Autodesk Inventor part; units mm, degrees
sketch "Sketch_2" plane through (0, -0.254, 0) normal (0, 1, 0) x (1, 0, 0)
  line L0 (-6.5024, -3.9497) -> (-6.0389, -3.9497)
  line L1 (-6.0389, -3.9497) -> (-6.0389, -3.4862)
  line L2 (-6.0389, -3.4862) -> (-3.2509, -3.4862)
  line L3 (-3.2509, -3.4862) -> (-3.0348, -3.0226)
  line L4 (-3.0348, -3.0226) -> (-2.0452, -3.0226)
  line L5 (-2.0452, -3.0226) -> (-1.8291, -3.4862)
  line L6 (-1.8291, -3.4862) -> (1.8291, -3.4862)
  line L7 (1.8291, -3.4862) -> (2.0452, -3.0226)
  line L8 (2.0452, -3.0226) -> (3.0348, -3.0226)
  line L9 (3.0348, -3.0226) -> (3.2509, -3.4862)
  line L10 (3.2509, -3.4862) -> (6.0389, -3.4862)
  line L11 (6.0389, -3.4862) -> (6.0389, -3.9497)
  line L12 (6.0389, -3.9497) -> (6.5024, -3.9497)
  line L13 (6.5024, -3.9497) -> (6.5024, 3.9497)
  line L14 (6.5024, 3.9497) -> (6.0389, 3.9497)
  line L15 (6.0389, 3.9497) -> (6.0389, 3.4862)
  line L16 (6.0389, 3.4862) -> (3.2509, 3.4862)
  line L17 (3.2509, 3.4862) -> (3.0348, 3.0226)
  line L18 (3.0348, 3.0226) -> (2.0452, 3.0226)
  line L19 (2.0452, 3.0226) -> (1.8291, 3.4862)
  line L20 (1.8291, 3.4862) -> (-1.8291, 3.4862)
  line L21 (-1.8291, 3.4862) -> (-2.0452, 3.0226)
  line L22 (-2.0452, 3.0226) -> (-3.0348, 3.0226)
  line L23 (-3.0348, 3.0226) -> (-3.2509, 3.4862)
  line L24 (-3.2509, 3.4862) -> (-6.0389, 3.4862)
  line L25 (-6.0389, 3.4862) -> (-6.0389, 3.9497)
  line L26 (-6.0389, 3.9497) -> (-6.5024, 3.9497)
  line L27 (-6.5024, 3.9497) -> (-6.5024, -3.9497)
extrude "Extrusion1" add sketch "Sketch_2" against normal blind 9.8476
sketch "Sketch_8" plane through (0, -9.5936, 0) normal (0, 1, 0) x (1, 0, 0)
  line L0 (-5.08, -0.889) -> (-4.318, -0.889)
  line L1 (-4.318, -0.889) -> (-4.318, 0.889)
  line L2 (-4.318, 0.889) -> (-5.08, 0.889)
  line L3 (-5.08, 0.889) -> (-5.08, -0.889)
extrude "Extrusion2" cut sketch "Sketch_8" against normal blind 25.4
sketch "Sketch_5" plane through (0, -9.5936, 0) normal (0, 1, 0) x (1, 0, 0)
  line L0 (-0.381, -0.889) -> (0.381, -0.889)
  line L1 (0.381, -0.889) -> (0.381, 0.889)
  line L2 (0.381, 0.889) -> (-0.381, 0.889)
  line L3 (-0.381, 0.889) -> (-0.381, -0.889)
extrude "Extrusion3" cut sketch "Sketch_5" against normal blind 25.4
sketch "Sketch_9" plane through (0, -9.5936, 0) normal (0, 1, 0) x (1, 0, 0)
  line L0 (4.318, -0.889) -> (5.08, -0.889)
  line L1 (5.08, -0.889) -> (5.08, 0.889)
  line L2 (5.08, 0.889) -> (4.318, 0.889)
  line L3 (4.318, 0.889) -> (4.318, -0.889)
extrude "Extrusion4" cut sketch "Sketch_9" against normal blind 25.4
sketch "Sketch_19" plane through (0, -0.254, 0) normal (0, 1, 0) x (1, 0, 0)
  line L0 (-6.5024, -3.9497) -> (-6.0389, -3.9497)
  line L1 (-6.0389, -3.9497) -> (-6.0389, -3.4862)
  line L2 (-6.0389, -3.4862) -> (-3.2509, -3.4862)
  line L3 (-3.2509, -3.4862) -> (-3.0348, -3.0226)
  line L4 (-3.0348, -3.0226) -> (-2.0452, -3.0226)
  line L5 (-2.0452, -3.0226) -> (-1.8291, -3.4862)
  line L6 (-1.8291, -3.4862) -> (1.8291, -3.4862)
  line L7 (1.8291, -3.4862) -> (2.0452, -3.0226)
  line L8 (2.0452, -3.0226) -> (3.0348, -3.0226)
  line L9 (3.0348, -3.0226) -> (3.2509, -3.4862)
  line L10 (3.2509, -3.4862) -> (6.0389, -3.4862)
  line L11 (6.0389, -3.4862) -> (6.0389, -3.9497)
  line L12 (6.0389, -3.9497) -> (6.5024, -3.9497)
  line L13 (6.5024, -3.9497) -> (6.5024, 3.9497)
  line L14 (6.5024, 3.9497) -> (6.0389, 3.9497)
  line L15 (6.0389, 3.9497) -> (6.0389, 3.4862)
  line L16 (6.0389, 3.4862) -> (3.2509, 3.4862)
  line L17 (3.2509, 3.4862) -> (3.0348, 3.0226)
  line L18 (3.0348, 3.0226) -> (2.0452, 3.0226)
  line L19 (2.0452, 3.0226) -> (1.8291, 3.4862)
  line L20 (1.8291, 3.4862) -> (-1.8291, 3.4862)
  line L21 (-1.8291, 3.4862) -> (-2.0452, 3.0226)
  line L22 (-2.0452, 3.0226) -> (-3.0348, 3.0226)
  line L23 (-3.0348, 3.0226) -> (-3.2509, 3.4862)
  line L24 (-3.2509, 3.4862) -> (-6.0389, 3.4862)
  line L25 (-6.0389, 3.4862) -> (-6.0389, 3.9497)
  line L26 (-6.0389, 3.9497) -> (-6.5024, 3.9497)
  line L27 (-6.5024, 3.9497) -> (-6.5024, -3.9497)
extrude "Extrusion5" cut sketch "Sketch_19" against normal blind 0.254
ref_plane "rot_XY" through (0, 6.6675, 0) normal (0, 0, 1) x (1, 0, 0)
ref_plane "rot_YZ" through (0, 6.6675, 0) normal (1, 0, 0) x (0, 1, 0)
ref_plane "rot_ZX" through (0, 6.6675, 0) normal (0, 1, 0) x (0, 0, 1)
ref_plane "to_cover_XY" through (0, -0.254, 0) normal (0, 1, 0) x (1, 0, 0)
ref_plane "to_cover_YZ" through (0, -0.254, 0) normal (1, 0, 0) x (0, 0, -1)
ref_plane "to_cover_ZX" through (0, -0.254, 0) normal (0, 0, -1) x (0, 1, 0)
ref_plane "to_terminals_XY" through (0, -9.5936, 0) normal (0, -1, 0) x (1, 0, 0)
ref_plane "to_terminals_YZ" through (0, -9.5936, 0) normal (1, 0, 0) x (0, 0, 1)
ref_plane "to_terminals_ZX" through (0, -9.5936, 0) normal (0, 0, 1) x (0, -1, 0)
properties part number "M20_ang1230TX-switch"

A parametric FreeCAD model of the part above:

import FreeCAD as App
import Part
import Sketcher

V = App.Vector
Q = App.Units.Quantity


def add_polygon(sketch, points):
    """Adds a closed chain of lines whose ends are joined by coincident constraints."""
    first, n = sketch.GeometryCount, len(points)
    for a, b in zip(points, points[1:] + points[:1]):
        sketch.addGeometry(Part.LineSegment(App.Vector(*a, 0), App.Vector(*b, 0)), False)
    for i in range(n):
        sketch.addConstraint(Sketcher.Constraint("Coincident", first + i, 2, first + (i + 1) % n, 1))

doc = App.newDocument("Part")
body = doc.addObject("PartDesign::Body", "Body")

# Sketch on XZ plane
sketch1 = body.newObject("Sketcher::SketchObject", "Sketch")
sketch1.AttachmentSupport = (doc.getObject("XZ_Plane"), [""])
sketch1.MapMode = "FlatFace"
sketch1.AttachmentOffset = App.Placement(V(0, 0, 0.01 * 25.4), App.Rotation())
add_polygon(sketch1, [(-6.5024, -3.9497), (-6.5024, 3.9497), (-6.0389, 3.9497), (-6.0389, 3.4862), (-3.2509, 3.4862), (-3.0348, 3.0226), (-2.0452, 3.0226), (-1.8291, 3.4862), (1.8291, 3.4862), (2.0452, 3.0226), (3.0348, 3.0226), (3.2509, 3.4862), (6.0389, 3.4862), (6.0389, 3.9497), (6.5024, 3.9497), (6.5024, -3.9497), (6.0389, -3.9497), (6.0389, -3.4862), (3.2509, -3.4862), (3.0348, -3.0226), (2.0452, -3.0226), (1.8291, -3.4862), (-1.8291, -3.4862), (-2.0452, -3.0226), (-3.0348, -3.0226), (-3.2509, -3.4862), (-6.0389, -3.4862), (-6.0389, -3.9497)])  # lines 0-27
sketch1.addConstraint([
    Sketcher.Constraint("Vertical", 0),
    Sketcher.Constraint("Horizontal", 1),
    Sketcher.Constraint("Vertical", 2),
    Sketcher.Constraint("Horizontal", 3),
    Sketcher.Constraint("Horizontal", 5),
    Sketcher.Constraint("Horizontal", 7),
    Sketcher.Constraint("Horizontal", 9),
    Sketcher.Constraint("Horizontal", 11),
    Sketcher.Constraint("Vertical", 12),
    Sketcher.Constraint("Horizontal", 13),
    Sketcher.Constraint("Vertical", 14),
    Sketcher.Constraint("Horizontal", 15),
    Sketcher.Constraint("Vertical", 16),
    Sketcher.Constraint("Horizontal", 17),
    Sketcher.Constraint("Horizontal", 19),
    Sketcher.Constraint("Horizontal", 21),
    Sketcher.Constraint("Horizontal", 23),
    Sketcher.Constraint("Horizontal", 25),
    Sketcher.Constraint("Vertical", 26),
    Sketcher.Constraint("Horizontal", 27),
    Sketcher.Constraint("Symmetric", 0, 2, 14, 2, -1, 1),
    Sketcher.Constraint("Symmetric", 2, 2, 16, 2, -1, 1),
    Sketcher.Constraint("Symmetric", 4, 2, 18, 2, -1, 1),
    Sketcher.Constraint("Symmetric", 6, 2, 20, 2, -1, 1),
    Sketcher.Constraint("Symmetric", 8, 2, 22, 2, -1, 1),
    Sketcher.Constraint("Symmetric", 10, 2, 24, 2, -1, 1),
    Sketcher.Constraint("Symmetric", 12, 2, 26, 2, -1, 1),
    Sketcher.Constraint("Symmetric", 5, 2, 8, 2, -2),
    Sketcher.Constraint("Symmetric", 3, 2, 10, 2, -2),
    Sketcher.Constraint("Symmetric", 1, 2, 12, 2, -2),
    Sketcher.Constraint("Parallel", 4, 8),
    Sketcher.Constraint("Parallel", 6, 10),
    Sketcher.Constraint("Parallel", 8, 18),
    Sketcher.Constraint("Parallel", 10, 20),
    Sketcher.Constraint("Parallel", 18, 22),
    Sketcher.Constraint("Parallel", 20, 24),
    Sketcher.Constraint("Horizontal", 3, 2, 6, 2),
    Sketcher.Constraint("Vertical", 9, 2, 18, 2),
    Sketcher.Constraint("Equal", 27, 2),
    Sketcher.Constraint("DistanceX", 3, 2, 7, 2, Q("0.2 in")),
    Sketcher.Constraint("DistanceY", 0, 1, 0, 2, Q("0.311 in")),
    Sketcher.Constraint("DistanceX", 0, 2, -1, 1, Q("0.256 in")),
    Sketcher.Constraint("DistanceX", 3, 2, -1, 1, Q("0.128 in")),
    Sketcher.Constraint("DistanceY", -1, 1, 4, 2, Q("0.119 in")),
    Sketcher.Constraint("DistanceX", 1, 1, 1, 2, Q("0.4635 mm")),
    Sketcher.Constraint("DistanceX", 5, 1, 5, 2, Q("0.9896 mm")),
])
pad1 = body.newObject("PartDesign::Pad", "Pad")
pad1.Profile = sketch1
pad1.Length = Q("0.3877008 in")

# Sketch on XZ plane
sketch2 = body.newObject("Sketcher::SketchObject", "Sketch001")
sketch2.AttachmentSupport = (doc.getObject("XZ_Plane"), [""])
sketch2.MapMode = "FlatFace"
sketch2.AttachmentOffset = App.Placement(V(0, 0, 0.3777008 * 25.4), App.Rotation())
add_polygon(sketch2, [(-5.08, -0.889), (-5.08, 0.889), (-4.318, 0.889), (-4.318, -0.889)])  # lines 0-3
sketch2.addConstraint([
    Sketcher.Constraint("Vertical", 0),
    Sketcher.Constraint("Horizontal", 1),
    Sketcher.Constraint("Vertical", 2),
    Sketcher.Constraint("Horizontal", 3),
    Sketcher.Constraint("DistanceX", 1, 1, 1, 2, Q("0.03 in")),
    Sketcher.Constraint("DistanceY", 0, 1, 0, 2, Q("0.07 in")),
    Sketcher.Constraint("DistanceX", 0, 2, -1, 1, Q("0.2 in")),
    Sketcher.Constraint("DistanceY", -1, 1, 0, 2, Q("0.035 in")),
])
pocket1 = body.newObject("PartDesign::Pocket", "Pocket")
pocket1.Profile = sketch2
pocket1.Length = Q("1 in")
pocket1.Reversed = True

# Sketch on XZ plane
sketch3 = body.newObject("Sketcher::SketchObject", "Sketch002")
sketch3.AttachmentSupport = (doc.getObject("XZ_Plane"), [""])
sketch3.MapMode = "FlatFace"
sketch3.AttachmentOffset = App.Placement(V(0, 0, 0.3777008 * 25.4), App.Rotation())
add_polygon(sketch3, [(-0.381, -0.889), (-0.381, 0.889), (0.381, 0.889), (0.381, -0.889)])  # lines 0-3
sketch3.addConstraint([
    Sketcher.Constraint("Vertical", 0),
    Sketcher.Constraint("Horizontal", 1),
    Sketcher.Constraint("Vertical", 2),
    Sketcher.Constraint("Horizontal", 3),
    Sketcher.Constraint("Symmetric", 0, 2, 2, 2, -1, 1),
    Sketcher.Constraint("DistanceX", 1, 1, 1, 2, Q("0.03 in")),
    Sketcher.Constraint("DistanceY", 0, 1, 0, 2, Q("0.07 in")),
])
pocket2 = body.newObject("PartDesign::Pocket", "Pocket001")
pocket2.Profile = sketch3
pocket2.Length = Q("1 in")
pocket2.Reversed = True

# Sketch on XZ plane
sketch4 = body.newObject("Sketcher::SketchObject", "Sketch003")
sketch4.AttachmentSupport = (doc.getObject("XZ_Plane"), [""])
sketch4.MapMode = "FlatFace"
sketch4.AttachmentOffset = App.Placement(V(0, 0, 0.3777008 * 25.4), App.Rotation())
add_polygon(sketch4, [(4.318, -0.889), (4.318, 0.889), (5.08, 0.889), (5.08, -0.889)])  # lines 0-3
sketch4.addConstraint([
    Sketcher.Constraint("Vertical", 0),
    Sketcher.Constraint("Horizontal", 1),
    Sketcher.Constraint("Vertical", 2),
    Sketcher.Constraint("Horizontal", 3),
    Sketcher.Constraint("DistanceX", 1, 1, 1, 2, Q("0.03 in")),
    Sketcher.Constraint("DistanceY", 0, 1, 0, 2, Q("0.07 in")),
    Sketcher.Constraint("DistanceX", -1, 1, 1, 2, Q("0.2 in")),
    Sketcher.Constraint("DistanceY", -1, 1, 0, 2, Q("0.035 in")),
])
pocket3 = body.newObject("PartDesign::Pocket", "Pocket002")
pocket3.Profile = sketch4
pocket3.Length = Q("1 in")
pocket3.Reversed = True

# Sketch on XZ plane
sketch5 = body.newObject("Sketcher::SketchObject", "Sketch004")
sketch5.AttachmentSupport = (doc.getObject("XZ_Plane"), [""])
sketch5.MapMode = "FlatFace"
sketch5.AttachmentOffset = App.Placement(V(0, 0, 0.01 * 25.4), App.Rotation())
add_polygon(sketch5, [(-6.5024, -3.9497), (-6.5024, 3.9497), (-6.0389, 3.9497), (-6.0389, 3.4862), (-3.2509, 3.4862), (-3.0348, 3.0226), (-2.0452, 3.0226), (-1.8291, 3.4862), (1.8291, 3.4862), (2.0452, 3.0226), (3.0348, 3.0226), (3.2509, 3.4862), (6.0389, 3.4862), (6.0389, 3.9497), (6.5024, 3.9497), (6.5024, -3.9497), (6.0389, -3.9497), (6.0389, -3.4862), (3.2509, -3.4862), (3.0348, -3.0226), (2.0452, -3.0226), (1.8291, -3.4862), (-1.8291, -3.4862), (-2.0452, -3.0226), (-3.0348, -3.0226), (-3.2509, -3.4862), (-6.0389, -3.4862), (-6.0389, -3.9497)])  # lines 0-27
sketch5.addConstraint([
    Sketcher.Constraint("Vertical", 0),
    Sketcher.Constraint("Horizontal", 1),
    Sketcher.Constraint("Vertical", 2),
    Sketcher.Constraint("Horizontal", 3),
    Sketcher.Constraint("Horizontal", 5),
    Sketcher.Constraint("Horizontal", 7),
    Sketcher.Constraint("Horizontal", 9),
    Sketcher.Constraint("Horizontal", 11),
    Sketcher.Constraint("Vertical", 12),
    Sketcher.Constraint("Horizontal", 13),
    Sketcher.Constraint("Vertical", 14),
    Sketcher.Constraint("Horizontal", 15),
    Sketcher.Constraint("Vertical", 16),
    Sketcher.Constraint("Horizontal", 17),
    Sketcher.Constraint("Horizontal", 19),
    Sketcher.Constraint("Horizontal", 21),
    Sketcher.Constraint("Horizontal", 23),
    Sketcher.Constraint("Horizontal", 25),
    Sketcher.Constraint("Vertical", 26),
    Sketcher.Constraint("Horizontal", 27),
    Sketcher.Constraint("Symmetric", 0, 2, 14, 2, -1, 1),
    Sketcher.Constraint("Symmetric", 2, 2, 16, 2, -1, 1),
    Sketcher.Constraint("Symmetric", 4, 2, 18, 2, -1, 1),
    Sketcher.Constraint("Symmetric", 6, 2, 20, 2, -1, 1),
    Sketcher.Constraint("Symmetric", 8, 2, 22, 2, -1, 1),
    Sketcher.Constraint("Symmetric", 10, 2, 24, 2, -1, 1),
    Sketcher.Constraint("Symmetric", 12, 2, 26, 2, -1, 1),
    Sketcher.Constraint("Symmetric", 5, 2, 8, 2, -2),
    Sketcher.Constraint("Symmetric", 3, 2, 10, 2, -2),
    Sketcher.Constraint("Symmetric", 1, 2, 12, 2, -2),
    Sketcher.Constraint("Parallel", 4, 8),
    Sketcher.Constraint("Parallel", 6, 10),
    Sketcher.Constraint("Parallel", 8, 18),
    Sketcher.Constraint("Parallel", 10, 20),
    Sketcher.Constraint("Parallel", 18, 22),
    Sketcher.Constraint("Parallel", 20, 24),
    Sketcher.Constraint("Horizontal", 3, 2, 6, 2),
    Sketcher.Constraint("Vertical", 9, 2, 18, 2),
    Sketcher.Constraint("Equal", 27, 2),
    Sketcher.Constraint("DistanceX", 3, 2, 7, 2, Q("0.2 in")),
    Sketcher.Constraint("DistanceY", 0, 1, 0, 2, Q("0.311 in")),
    Sketcher.Constraint("DistanceX", 0, 2, -1, 1, Q("0.256 in")),
    Sketcher.Constraint("DistanceX", 3, 2, -1, 1, Q("0.128 in")),
    Sketcher.Constraint("DistanceY", -1, 1, 4, 2, Q("0.119 in")),
    Sketcher.Constraint("DistanceX", 1, 1, 1, 2, Q("0.4635 mm")),
    Sketcher.Constraint("DistanceX", 5, 1, 5, 2, Q("0.9896 mm")),
])
pocket4 = body.newObject("PartDesign::Pocket", "Pocket003")
pocket4.Profile = sketch5
pocket4.Length = Q("0.01 in")
pocket4.Reversed = True

doc.recompute()
